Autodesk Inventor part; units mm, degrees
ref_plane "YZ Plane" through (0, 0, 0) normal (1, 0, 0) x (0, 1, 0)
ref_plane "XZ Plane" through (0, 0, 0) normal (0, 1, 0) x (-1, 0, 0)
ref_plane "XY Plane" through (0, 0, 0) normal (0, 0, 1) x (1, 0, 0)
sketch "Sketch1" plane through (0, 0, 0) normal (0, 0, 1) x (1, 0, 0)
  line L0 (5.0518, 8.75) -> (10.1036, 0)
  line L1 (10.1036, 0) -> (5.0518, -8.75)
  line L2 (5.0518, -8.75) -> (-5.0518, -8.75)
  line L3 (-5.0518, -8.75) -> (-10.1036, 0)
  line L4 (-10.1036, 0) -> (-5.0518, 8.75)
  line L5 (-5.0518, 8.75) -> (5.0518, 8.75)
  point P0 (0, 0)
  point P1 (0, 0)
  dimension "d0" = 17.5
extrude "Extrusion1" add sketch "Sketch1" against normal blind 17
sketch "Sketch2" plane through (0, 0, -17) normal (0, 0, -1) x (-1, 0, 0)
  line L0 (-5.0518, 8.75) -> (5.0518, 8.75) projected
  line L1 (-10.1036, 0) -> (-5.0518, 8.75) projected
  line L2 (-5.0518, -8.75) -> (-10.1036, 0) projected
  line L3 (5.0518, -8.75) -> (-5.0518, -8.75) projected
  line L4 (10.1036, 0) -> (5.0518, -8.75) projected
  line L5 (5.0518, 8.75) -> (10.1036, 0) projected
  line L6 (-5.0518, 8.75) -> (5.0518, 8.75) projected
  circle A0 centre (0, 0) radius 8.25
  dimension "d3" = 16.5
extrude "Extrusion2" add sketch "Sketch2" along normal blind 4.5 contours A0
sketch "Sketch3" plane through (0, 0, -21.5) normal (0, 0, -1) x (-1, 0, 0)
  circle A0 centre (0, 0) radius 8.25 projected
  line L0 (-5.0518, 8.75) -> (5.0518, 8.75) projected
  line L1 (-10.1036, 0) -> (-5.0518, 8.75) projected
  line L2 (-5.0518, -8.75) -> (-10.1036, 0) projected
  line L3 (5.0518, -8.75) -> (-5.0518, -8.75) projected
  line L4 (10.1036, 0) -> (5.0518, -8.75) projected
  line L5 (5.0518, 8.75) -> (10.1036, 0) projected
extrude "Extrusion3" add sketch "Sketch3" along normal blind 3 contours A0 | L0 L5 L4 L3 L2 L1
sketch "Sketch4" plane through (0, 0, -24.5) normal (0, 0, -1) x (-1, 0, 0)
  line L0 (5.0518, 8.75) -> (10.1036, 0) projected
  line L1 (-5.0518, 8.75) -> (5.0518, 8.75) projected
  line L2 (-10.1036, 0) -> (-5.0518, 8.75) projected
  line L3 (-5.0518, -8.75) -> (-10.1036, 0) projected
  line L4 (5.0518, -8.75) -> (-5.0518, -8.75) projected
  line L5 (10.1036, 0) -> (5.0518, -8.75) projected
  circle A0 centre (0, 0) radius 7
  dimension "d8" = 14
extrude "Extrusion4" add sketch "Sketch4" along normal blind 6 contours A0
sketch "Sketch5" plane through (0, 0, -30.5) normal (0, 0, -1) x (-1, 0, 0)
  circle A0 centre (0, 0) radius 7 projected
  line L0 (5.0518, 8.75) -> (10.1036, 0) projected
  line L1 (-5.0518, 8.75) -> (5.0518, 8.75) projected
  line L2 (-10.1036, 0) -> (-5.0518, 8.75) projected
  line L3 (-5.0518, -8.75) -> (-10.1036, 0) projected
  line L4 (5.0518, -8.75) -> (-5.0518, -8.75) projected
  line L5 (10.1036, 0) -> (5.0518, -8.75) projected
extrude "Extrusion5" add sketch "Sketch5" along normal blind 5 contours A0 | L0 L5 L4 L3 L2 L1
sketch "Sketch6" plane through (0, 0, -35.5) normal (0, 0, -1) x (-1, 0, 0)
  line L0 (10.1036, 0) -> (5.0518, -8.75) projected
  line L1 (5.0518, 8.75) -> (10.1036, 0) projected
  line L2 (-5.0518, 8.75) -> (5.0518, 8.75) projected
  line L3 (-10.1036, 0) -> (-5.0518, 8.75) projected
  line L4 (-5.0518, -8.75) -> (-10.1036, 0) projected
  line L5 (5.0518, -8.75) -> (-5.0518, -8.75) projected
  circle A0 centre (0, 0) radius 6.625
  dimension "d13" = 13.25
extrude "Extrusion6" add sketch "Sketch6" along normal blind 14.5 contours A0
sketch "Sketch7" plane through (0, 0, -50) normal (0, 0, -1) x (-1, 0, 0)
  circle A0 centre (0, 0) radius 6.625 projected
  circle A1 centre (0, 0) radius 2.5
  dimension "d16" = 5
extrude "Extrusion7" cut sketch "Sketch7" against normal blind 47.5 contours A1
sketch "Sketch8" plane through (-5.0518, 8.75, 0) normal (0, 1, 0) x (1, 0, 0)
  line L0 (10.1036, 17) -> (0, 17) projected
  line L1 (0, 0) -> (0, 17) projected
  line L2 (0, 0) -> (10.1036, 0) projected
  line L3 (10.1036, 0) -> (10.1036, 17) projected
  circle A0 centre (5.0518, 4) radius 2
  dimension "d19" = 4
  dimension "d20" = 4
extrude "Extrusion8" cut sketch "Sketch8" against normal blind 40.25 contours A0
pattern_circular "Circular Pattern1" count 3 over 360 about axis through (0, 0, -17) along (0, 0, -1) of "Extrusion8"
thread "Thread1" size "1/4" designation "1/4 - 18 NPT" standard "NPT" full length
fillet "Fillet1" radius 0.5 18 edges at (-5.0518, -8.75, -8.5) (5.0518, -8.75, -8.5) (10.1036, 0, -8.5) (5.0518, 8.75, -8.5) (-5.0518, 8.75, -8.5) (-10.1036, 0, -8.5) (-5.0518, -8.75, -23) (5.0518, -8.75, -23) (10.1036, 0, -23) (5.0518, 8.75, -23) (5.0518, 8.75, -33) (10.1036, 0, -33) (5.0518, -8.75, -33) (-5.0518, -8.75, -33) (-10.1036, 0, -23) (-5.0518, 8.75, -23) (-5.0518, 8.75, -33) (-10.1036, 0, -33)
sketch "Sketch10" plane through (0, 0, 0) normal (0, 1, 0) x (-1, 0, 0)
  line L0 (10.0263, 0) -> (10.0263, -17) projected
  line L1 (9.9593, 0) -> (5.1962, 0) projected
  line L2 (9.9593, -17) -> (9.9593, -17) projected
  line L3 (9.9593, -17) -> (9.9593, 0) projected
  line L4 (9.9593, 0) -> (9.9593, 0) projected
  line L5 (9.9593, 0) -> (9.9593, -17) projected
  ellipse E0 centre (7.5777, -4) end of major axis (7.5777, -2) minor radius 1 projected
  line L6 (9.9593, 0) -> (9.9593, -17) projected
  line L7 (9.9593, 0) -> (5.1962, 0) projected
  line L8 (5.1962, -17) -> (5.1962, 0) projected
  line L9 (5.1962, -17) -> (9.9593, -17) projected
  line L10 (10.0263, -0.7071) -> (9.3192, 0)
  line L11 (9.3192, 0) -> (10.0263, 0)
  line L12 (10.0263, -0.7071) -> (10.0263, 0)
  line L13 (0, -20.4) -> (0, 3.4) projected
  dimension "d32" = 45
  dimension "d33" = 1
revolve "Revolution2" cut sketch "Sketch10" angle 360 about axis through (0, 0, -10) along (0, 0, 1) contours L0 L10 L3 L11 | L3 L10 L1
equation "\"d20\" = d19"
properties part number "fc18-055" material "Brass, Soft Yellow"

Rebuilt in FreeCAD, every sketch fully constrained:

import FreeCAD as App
import Part
import Sketcher
Q = App.Units.Quantity


def edges_at(feature, points):
    """Names of the edges that pass closest to the given points."""
    edges = feature.Shape.Edges
    near = lambda p: min(range(len(edges)), key=lambda i: edges[i].distToShape(Part.Vertex(*p))[0])
    return sorted({f"Edge{near(p) + 1}" for p in points})


def add_polygon(sketch, points):
    """Adds a closed chain of lines whose ends are joined by coincident constraints."""
    first, n = sketch.GeometryCount, len(points)
    for a, b in zip(points, points[1:] + points[:1]):
        sketch.addGeometry(Part.LineSegment(App.Vector(*a, 0), App.Vector(*b, 0)), False)
    for i in range(n):
        sketch.addConstraint(Sketcher.Constraint("Coincident", first + i, 2, first + (i + 1) % n, 1))

doc = App.newDocument("Part")
body = doc.addObject("PartDesign::Body", "Body")

# Sketch on XY plane
sketch1 = body.newObject("Sketcher::SketchObject", "Sketch")
sketch1.AttachmentSupport = (doc.getObject("XY_Plane"), [""])
sketch1.MapMode = "FlatFace"
add_polygon(sketch1, [(10.1036, 0), (5.0518, 8.75), (-5.0518, 8.75), (-10.1036, 0), (-5.0518, -8.75), (5.0518, -8.75)])  # lines 0-5
sketch1.addConstraint([
    Sketcher.Constraint("Horizontal", 1),
    Sketcher.Constraint("Horizontal", 4),
    Sketcher.Constraint("Symmetric", 0, 2, 3, 2, -1, 1),
    Sketcher.Constraint("Symmetric", 2, 2, 5, 2, -1, 1),
    Sketcher.Constraint("PointOnObject", 2, 2, -1),
    Sketcher.Constraint("Parallel", 2, 5),
    Sketcher.Constraint("Vertical", 1, 2, 3, 2),
    Sketcher.Constraint("DistanceY", 3, 2, 1, 2, 17.5),
    Sketcher.Constraint("Angle", 0, Q("120 deg")),
    Sketcher.Constraint("DistanceX", 1, 2, 1, 1, 10.1036),
])
pad1 = body.newObject("PartDesign::Pad", "Pad")
pad1.Profile = sketch1
pad1.Length = 17
pad1.Reversed = True

# Sketch on XY plane
sketch2 = body.newObject("Sketcher::SketchObject", "Sketch001")
sketch2.AttachmentSupport = (doc.getObject("XY_Plane"), [""])
sketch2.MapMode = "FlatFace"
sketch2.AttachmentOffset = App.Placement(App.Vector(0, 0, -17), App.Rotation())
sketch2.addGeometry(Part.Circle(App.Vector(0, 0, 0), App.Vector(0, 0, 1), 8.25), False)
sketch2.addConstraint([
    Sketcher.Constraint("Coincident", 0, 3, -1, 1),
    Sketcher.Constraint("Diameter", 0, 16.5),
])
pad2 = body.newObject("PartDesign::Pad", "Pad001")
pad2.Profile = sketch2
pad2.Length = 4.5
pad2.Reversed = True

# Sketch on XY plane
sketch3 = body.newObject("Sketcher::SketchObject", "Sketch002")
sketch3.AttachmentSupport = (doc.getObject("XY_Plane"), [""])
sketch3.MapMode = "FlatFace"
sketch3.AttachmentOffset = App.Placement(App.Vector(0, 0, -21.5), App.Rotation())
add_polygon(sketch3, [(-5.0518, 8.75), (5.0518, 8.75), (10.1036, 0), (5.0518, -8.75), (-5.0518, -8.75), (-10.1036, 0)])  # lines 0-5
sketch3.addConstraint([
    Sketcher.Constraint("Horizontal", 0),
    Sketcher.Constraint("Horizontal", 3),
    Sketcher.Constraint("Symmetric", 0, 2, 3, 2, -1, 1),
    Sketcher.Constraint("Symmetric", 1, 2, 4, 2, -1, 1),
    Sketcher.Constraint("PointOnObject", 1, 2, -1),
    Sketcher.Constraint("Parallel", 2, 5),
    Sketcher.Constraint("Vertical", 0, 2, 2, 2),
    Sketcher.Constraint("Angle", 1, Q("-60 deg")),
    Sketcher.Constraint("DistanceY", 2, 2, 0, 2, 17.5),
    Sketcher.Constraint("DistanceX", 0, 1, 0, 2, 10.1036),
])
pad3 = body.newObject("PartDesign::Pad", "Pad002")
pad3.Profile = sketch3
pad3.Length = 3
pad3.Reversed = True

# Sketch on XY plane
sketch4 = body.newObject("Sketcher::SketchObject", "Sketch003")
sketch4.AttachmentSupport = (doc.getObject("XY_Plane"), [""])
sketch4.MapMode = "FlatFace"
sketch4.AttachmentOffset = App.Placement(App.Vector(0, 0, -24.5), App.Rotation())
sketch4.addGeometry(Part.Circle(App.Vector(0, 0, 0), App.Vector(0, 0, 1), 7), False)
sketch4.addConstraint([
    Sketcher.Constraint("Coincident", 0, 3, -1, 1),
    Sketcher.Constraint("Diameter", 0, 14.0),
])
pad4 = body.newObject("PartDesign::Pad", "Pad003")
pad4.Profile = sketch4
pad4.Length = 6
pad4.Reversed = True

# Sketch on XY plane
sketch5 = body.newObject("Sketcher::SketchObject", "Sketch004")
sketch5.AttachmentSupport = (doc.getObject("XY_Plane"), [""])
sketch5.MapMode = "FlatFace"
sketch5.AttachmentOffset = App.Placement(App.Vector(0, 0, -30.5), App.Rotation())
add_polygon(sketch5, [(-10.1036, 0), (-5.0518, 8.75), (5.0518, 8.75), (10.1036, 0), (5.0518, -8.75), (-5.0518, -8.75)])  # lines 0-5
sketch5.addConstraint([
    Sketcher.Constraint("Horizontal", 1),
    Sketcher.Constraint("Horizontal", 4),
    Sketcher.Constraint("Symmetric", 0, 2, 3, 2, -1, 1),
    Sketcher.Constraint("Symmetric", 2, 2, 5, 2, -1, 1),
    Sketcher.Constraint("PointOnObject", 2, 2, -1),
    Sketcher.Constraint("Parallel", 2, 5),
    Sketcher.Constraint("Vertical", 1, 2, 3, 2),
    Sketcher.Constraint("Angle", 0, Q("60 deg")),
    Sketcher.Constraint("DistanceY", 3, 2, 1, 2, 17.5),
    Sketcher.Constraint("DistanceX", 1, 1, 1, 2, 10.1036),
])
pad5 = body.newObject("PartDesign::Pad", "Pad004")
pad5.Profile = sketch5
pad5.Length = 5
pad5.Reversed = True

# Sketch on XY plane
sketch6 = body.newObject("Sketcher::SketchObject", "Sketch005")
sketch6.AttachmentSupport = (doc.getObject("XY_Plane"), [""])
sketch6.MapMode = "FlatFace"
sketch6.AttachmentOffset = App.Placement(App.Vector(0, 0, -35.5), App.Rotation())
sketch6.addGeometry(Part.Circle(App.Vector(0, 0, 0), App.Vector(0, 0, 1), 6.625), False)
sketch6.addConstraint([
    Sketcher.Constraint("Coincident", 0, 3, -1, 1),
    Sketcher.Constraint("Diameter", 0, 13.25),
])
pad6 = body.newObject("PartDesign::Pad", "Pad005")
pad6.Profile = sketch6
pad6.Length = 14.5
pad6.Reversed = True

# Sketch on XY plane
sketch7 = body.newObject("Sketcher::SketchObject", "Sketch006")
sketch7.AttachmentSupport = (doc.getObject("XY_Plane"), [""])
sketch7.MapMode = "FlatFace"
sketch7.AttachmentOffset = App.Placement(App.Vector(0, 0, -50), App.Rotation())
sketch7.addGeometry(Part.Circle(App.Vector(0, 0, 0), App.Vector(0, 0, 1), 2.5), False)
sketch7.addConstraint([
    Sketcher.Constraint("Coincident", 0, 3, -1, 1),
    Sketcher.Constraint("Diameter", 0, 5.0),
])
pocket1 = body.newObject("PartDesign::Pocket", "Pocket")
pocket1.Profile = sketch7
pocket1.Length = 47.5
pocket1.Reversed = True

# Sketch on XZ plane
sketch8 = body.newObject("Sketcher::SketchObject", "Sketch007")
sketch8.AttachmentSupport = (doc.getObject("XZ_Plane"), [""])
sketch8.MapMode = "FlatFace"
sketch8.AttachmentOffset = App.Placement(App.Vector(0, 0, -8.75), App.Rotation())
sketch8.addGeometry(Part.Circle(App.Vector(0, -4, 0), App.Vector(0, 0, 1), 2), False)
sketch8.addConstraint([
    Sketcher.Constraint("PointOnObject", 0, 3, -2),
    Sketcher.Constraint("Diameter", 0, 4.0),
    Sketcher.Constraint("DistanceY", 0, 3, -1, 1, 4.0),
])
pocket2 = body.newObject("PartDesign::Pocket", "Pocket001")
pocket2.Profile = sketch8
pocket2.Length = 40.25
pocket2.Reversed = True
doc.recompute()

polarpattern = body.newObject("PartDesign::PolarPattern", "PolarPattern")
polarpattern.Originals = [pocket2]
polarpattern.Axis = (doc.getObject("Z_Axis"), [""])
polarpattern.Angle = 360
polarpattern.Occurrences = 3
body.Tip = polarpattern
doc.recompute()

fillet = body.newObject("PartDesign::Fillet", "Fillet")
fillet.Base = (polarpattern, edges_at(polarpattern, [
    (-5.052, -8.75, -8.5),
    (5.052, -8.75, -8.5),
    (10.104, 0, -8.5),
    (5.052, 8.75, -8.5),
    (-5.052, 8.75, -8.5),
    (-10.104, 0, -8.5),
    (-5.052, -8.75, -23),
    (5.052, -8.75, -23),
    (10.104, 0, -23),
    (5.052, 8.75, -23),
    (5.052, 8.75, -33),
    (10.104, 0, -33),
    (5.052, -8.75, -33),
    (-5.052, -8.75, -33),
    (-10.104, 0, -23),
    (-5.052, 8.75, -23),
    (-5.052, 8.75, -33),
    (-10.104, 0, -33),
]))
fillet.Radius = 0.5

# Sketch on XZ plane
sketch9 = body.newObject("Sketcher::SketchObject", "Sketch008")
sketch9.AttachmentSupport = (doc.getObject("XZ_Plane"), [""])
sketch9.MapMode = "FlatFace"
add_polygon(sketch9, [(-10.0263, -0.7071), (-10.0263, 0), (-9.3192, 0)])  # lines 0-2
sketch9.addConstraint([
    Sketcher.Constraint("Vertical", 0),
    Sketcher.Constraint("Horizontal", 1),
    Sketcher.Constraint("PointOnObject", 0, 2, -1),
    Sketcher.Constraint("Equal", 1, 0),
    Sketcher.Constraint("Distance", 2, 1.0),
    Sketcher.Constraint("DistanceX", 0, 2, -1, 1, 10.0263),
])
groove = body.newObject("PartDesign::Groove", "Groove")
groove.Profile = sketch9
groove.ReferenceAxis = (sketch9, ["V_Axis"])
groove.Angle = 360

doc.recompute()
